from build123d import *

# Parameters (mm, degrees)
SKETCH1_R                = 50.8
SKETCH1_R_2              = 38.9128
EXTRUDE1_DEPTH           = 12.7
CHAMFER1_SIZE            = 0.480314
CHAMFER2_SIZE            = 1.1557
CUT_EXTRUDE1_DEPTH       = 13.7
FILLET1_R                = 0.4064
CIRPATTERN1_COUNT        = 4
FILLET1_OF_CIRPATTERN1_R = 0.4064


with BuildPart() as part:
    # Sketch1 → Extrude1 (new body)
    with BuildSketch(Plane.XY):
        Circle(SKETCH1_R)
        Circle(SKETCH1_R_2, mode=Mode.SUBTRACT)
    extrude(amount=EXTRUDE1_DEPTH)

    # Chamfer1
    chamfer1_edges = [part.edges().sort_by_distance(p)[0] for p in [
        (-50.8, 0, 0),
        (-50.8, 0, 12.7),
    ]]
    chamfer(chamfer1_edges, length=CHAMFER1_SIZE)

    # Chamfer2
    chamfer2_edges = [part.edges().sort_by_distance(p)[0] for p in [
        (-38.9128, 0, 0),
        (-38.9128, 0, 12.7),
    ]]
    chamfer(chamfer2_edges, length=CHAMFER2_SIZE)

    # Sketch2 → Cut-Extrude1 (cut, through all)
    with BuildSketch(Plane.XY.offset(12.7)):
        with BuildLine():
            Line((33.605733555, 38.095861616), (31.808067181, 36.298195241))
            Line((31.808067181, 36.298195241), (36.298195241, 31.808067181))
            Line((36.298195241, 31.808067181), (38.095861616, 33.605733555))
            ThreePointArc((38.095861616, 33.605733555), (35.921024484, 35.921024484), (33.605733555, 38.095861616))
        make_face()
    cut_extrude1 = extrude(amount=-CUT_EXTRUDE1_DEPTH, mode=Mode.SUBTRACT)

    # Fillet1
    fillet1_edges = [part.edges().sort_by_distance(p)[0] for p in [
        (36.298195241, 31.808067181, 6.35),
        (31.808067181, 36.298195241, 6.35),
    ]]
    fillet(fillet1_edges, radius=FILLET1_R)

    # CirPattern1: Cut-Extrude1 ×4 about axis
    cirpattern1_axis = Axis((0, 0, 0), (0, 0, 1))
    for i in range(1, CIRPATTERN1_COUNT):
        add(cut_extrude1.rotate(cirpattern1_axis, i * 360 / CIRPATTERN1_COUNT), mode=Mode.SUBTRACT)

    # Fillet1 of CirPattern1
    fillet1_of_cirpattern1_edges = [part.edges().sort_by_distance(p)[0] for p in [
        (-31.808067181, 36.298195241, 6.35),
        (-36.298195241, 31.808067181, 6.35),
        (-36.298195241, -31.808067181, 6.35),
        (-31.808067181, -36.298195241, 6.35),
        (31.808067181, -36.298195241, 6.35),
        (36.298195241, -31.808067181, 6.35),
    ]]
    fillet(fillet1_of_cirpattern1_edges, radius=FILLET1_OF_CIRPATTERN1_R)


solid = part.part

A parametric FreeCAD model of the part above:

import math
import FreeCAD as App
import Part
import Sketcher

V = App.Vector
Q = App.Units.Quantity


def edges_at(feature, points):
    """Names of the edges that pass closest to the given points."""
    edges = feature.Shape.Edges
    near = lambda p: min(range(len(edges)), key=lambda i: edges[i].distToShape(Part.Vertex(*p))[0])
    return sorted({f"Edge{near(p) + 1}" for p in points})

doc = App.newDocument("Part")
params = doc.addObject("Spreadsheet::Sheet", "Params")
for row, (alias, value) in enumerate([
    ("sketch1_diameter", "4 in"),
    ("sketch1_diameter2", "3.064 in"),
    ("pad1_length", "0.5 in"),
    ("chamfer_size", "0.480314 mm"),
    ("chamfer2_size", "0.0455 in"),
    ("sketch2_radius", "2 in"),
    ("sketch2_length", "0.25 in"),
    ("fillet_radius", "0.016 in"),
    ("fillet2_radius", "0.016 in"),
], start=1):
    params.set(f"A{row}", alias)
    params.set(f"B{row}", "=" + value)
    params.setAlias(f"B{row}", alias)

body = doc.addObject("PartDesign::Body", "Body")

# Sketch on XY plane
sketch1 = doc.addObject("Sketcher::SketchObject", "Sketch")
body.addObject(sketch1)
sketch1.AttachmentSupport = (doc.XY_Plane, [""])
sketch1.MapMode = "FlatFace"
sketch1.addGeometry([
    Part.Circle(V(0, 0, 0), V(0, 0, 1), 50.8),
    Part.Circle(V(0, 0, 0), V(0, 0, 1), 38.9128),
], False)
sketch1.addConstraint([
    Sketcher.Constraint("Coincident", 0, 3, -1, 1),
    Sketcher.Constraint("Coincident", 1, 3, -1, 1),
    Sketcher.Constraint("Diameter", 0, Q("4 in")),
    Sketcher.Constraint("Diameter", 1, Q("3.064 in")),
])
sketch1.setExpression("Constraints[2]", "Params.sketch1_diameter")
sketch1.setExpression("Constraints[3]", "Params.sketch1_diameter2")
pad1 = doc.addObject("PartDesign::Pad", "Pad")
body.addObject(pad1)
pad1.Profile = sketch1
pad1.setExpression("Length", "Params.pad1_length")
doc.recompute()

chamfer = doc.addObject("PartDesign::Chamfer", "Chamfer")
body.addObject(chamfer)
chamfer.Base = (pad1, edges_at(pad1, [(-50.8, 0, 0), (-50.8, 0, 12.7)]))
chamfer.setExpression("Size", "Params.chamfer_size")
doc.recompute()

chamfer2 = doc.addObject("PartDesign::Chamfer", "Chamfer001")
body.addObject(chamfer2)
chamfer2.Base = (chamfer, edges_at(chamfer, [(-38.913, 0, 0), (-38.913, 0, 12.7)]))
chamfer2.setExpression("Size", "Params.chamfer2_size")

# Sketch on XY plane
sketch2 = doc.addObject("Sketcher::SketchObject", "Sketch001")
body.addObject(sketch2)
sketch2.AttachmentSupport = (doc.XY_Plane, [""])
sketch2.MapMode = "FlatFace"
sketch2.AttachmentOffset = App.Placement(V(0, 0, 0.5 * 25.4), App.Rotation())
sketch2.addGeometry([
    Part.LineSegment(V(33.605734, 38.095862, 0), V(31.808067, 36.298195, 0)),
    Part.LineSegment(V(31.808067, 36.298195, 0), V(36.298195, 31.808067, 0)),
    Part.LineSegment(V(36.298195, 31.808067, 0), V(38.095862, 33.605734, 0)),
    Part.ArcOfCircle(Part.Circle(V(0, 0, 0), V(0, 0, 1), 50.8), math.radians(41.416678), math.radians(48.583322)),
], False)
sketch2.addConstraint([
    Sketcher.Constraint("Coincident", 0, 2, 1, 1),
    Sketcher.Constraint("Coincident", 1, 2, 2, 1),
    Sketcher.Constraint("Coincident", 2, 2, 3, 1),
    Sketcher.Constraint("Coincident", 3, 2, 0, 1),
    Sketcher.Constraint("Coincident", 3, 3, -1, 1),
    Sketcher.Constraint("Perpendicular", 0, 1),
    Sketcher.Constraint("Perpendicular", 1, 2),
    Sketcher.Constraint("Equal", 0, 2),
    Sketcher.Constraint("Radius", 3, Q("2 in")),
    Sketcher.Constraint("Angle", 0, Q("-135 deg")),
    Sketcher.Constraint("Distance", 1, Q("0.25 in")),
    Sketcher.Constraint("DistanceY", 2, 2, 0, 2, 2.692462),
])
sketch2.setExpression("Constraints[8]", "Params.sketch2_radius")
sketch2.setExpression("Constraints[10]", "Params.sketch2_length")
pocket1 = doc.addObject("PartDesign::Pocket", "Pocket")
body.addObject(pocket1)
pocket1.Profile = sketch2
pocket1.Type = "ThroughAll"
doc.recompute()

fillet = doc.addObject("PartDesign::Fillet", "Fillet")
body.addObject(fillet)
fillet.Base = (pocket1, edges_at(pocket1, [(36.298, 31.808, 6.35), (31.808, 36.298, 6.35)]))
fillet.setExpression("Radius", "Params.fillet_radius")
doc.recompute()

polarpattern = doc.addObject("PartDesign::PolarPattern", "PolarPattern")
body.addObject(polarpattern)
polarpattern.Originals = [pocket1]
polarpattern.Axis = (doc.Z_Axis, [""])
polarpattern.Angle = 360
polarpattern.Occurrences = 4
body.Tip = polarpattern
doc.recompute()

fillet2 = doc.addObject("PartDesign::Fillet", "Fillet001")
body.addObject(fillet2)
fillet2.Base = (polarpattern, edges_at(polarpattern, [
    (-31.808, 36.298, 6.35),
    (-36.298, 31.808, 6.35),
    (-36.298, -31.808, 6.35),
    (-31.808, -36.298, 6.35),
    (31.808, -36.298, 6.35),
    (36.298, -31.808, 6.35),
]))
fillet2.setExpression("Radius", "Params.fillet2_radius")

doc.recompute()
